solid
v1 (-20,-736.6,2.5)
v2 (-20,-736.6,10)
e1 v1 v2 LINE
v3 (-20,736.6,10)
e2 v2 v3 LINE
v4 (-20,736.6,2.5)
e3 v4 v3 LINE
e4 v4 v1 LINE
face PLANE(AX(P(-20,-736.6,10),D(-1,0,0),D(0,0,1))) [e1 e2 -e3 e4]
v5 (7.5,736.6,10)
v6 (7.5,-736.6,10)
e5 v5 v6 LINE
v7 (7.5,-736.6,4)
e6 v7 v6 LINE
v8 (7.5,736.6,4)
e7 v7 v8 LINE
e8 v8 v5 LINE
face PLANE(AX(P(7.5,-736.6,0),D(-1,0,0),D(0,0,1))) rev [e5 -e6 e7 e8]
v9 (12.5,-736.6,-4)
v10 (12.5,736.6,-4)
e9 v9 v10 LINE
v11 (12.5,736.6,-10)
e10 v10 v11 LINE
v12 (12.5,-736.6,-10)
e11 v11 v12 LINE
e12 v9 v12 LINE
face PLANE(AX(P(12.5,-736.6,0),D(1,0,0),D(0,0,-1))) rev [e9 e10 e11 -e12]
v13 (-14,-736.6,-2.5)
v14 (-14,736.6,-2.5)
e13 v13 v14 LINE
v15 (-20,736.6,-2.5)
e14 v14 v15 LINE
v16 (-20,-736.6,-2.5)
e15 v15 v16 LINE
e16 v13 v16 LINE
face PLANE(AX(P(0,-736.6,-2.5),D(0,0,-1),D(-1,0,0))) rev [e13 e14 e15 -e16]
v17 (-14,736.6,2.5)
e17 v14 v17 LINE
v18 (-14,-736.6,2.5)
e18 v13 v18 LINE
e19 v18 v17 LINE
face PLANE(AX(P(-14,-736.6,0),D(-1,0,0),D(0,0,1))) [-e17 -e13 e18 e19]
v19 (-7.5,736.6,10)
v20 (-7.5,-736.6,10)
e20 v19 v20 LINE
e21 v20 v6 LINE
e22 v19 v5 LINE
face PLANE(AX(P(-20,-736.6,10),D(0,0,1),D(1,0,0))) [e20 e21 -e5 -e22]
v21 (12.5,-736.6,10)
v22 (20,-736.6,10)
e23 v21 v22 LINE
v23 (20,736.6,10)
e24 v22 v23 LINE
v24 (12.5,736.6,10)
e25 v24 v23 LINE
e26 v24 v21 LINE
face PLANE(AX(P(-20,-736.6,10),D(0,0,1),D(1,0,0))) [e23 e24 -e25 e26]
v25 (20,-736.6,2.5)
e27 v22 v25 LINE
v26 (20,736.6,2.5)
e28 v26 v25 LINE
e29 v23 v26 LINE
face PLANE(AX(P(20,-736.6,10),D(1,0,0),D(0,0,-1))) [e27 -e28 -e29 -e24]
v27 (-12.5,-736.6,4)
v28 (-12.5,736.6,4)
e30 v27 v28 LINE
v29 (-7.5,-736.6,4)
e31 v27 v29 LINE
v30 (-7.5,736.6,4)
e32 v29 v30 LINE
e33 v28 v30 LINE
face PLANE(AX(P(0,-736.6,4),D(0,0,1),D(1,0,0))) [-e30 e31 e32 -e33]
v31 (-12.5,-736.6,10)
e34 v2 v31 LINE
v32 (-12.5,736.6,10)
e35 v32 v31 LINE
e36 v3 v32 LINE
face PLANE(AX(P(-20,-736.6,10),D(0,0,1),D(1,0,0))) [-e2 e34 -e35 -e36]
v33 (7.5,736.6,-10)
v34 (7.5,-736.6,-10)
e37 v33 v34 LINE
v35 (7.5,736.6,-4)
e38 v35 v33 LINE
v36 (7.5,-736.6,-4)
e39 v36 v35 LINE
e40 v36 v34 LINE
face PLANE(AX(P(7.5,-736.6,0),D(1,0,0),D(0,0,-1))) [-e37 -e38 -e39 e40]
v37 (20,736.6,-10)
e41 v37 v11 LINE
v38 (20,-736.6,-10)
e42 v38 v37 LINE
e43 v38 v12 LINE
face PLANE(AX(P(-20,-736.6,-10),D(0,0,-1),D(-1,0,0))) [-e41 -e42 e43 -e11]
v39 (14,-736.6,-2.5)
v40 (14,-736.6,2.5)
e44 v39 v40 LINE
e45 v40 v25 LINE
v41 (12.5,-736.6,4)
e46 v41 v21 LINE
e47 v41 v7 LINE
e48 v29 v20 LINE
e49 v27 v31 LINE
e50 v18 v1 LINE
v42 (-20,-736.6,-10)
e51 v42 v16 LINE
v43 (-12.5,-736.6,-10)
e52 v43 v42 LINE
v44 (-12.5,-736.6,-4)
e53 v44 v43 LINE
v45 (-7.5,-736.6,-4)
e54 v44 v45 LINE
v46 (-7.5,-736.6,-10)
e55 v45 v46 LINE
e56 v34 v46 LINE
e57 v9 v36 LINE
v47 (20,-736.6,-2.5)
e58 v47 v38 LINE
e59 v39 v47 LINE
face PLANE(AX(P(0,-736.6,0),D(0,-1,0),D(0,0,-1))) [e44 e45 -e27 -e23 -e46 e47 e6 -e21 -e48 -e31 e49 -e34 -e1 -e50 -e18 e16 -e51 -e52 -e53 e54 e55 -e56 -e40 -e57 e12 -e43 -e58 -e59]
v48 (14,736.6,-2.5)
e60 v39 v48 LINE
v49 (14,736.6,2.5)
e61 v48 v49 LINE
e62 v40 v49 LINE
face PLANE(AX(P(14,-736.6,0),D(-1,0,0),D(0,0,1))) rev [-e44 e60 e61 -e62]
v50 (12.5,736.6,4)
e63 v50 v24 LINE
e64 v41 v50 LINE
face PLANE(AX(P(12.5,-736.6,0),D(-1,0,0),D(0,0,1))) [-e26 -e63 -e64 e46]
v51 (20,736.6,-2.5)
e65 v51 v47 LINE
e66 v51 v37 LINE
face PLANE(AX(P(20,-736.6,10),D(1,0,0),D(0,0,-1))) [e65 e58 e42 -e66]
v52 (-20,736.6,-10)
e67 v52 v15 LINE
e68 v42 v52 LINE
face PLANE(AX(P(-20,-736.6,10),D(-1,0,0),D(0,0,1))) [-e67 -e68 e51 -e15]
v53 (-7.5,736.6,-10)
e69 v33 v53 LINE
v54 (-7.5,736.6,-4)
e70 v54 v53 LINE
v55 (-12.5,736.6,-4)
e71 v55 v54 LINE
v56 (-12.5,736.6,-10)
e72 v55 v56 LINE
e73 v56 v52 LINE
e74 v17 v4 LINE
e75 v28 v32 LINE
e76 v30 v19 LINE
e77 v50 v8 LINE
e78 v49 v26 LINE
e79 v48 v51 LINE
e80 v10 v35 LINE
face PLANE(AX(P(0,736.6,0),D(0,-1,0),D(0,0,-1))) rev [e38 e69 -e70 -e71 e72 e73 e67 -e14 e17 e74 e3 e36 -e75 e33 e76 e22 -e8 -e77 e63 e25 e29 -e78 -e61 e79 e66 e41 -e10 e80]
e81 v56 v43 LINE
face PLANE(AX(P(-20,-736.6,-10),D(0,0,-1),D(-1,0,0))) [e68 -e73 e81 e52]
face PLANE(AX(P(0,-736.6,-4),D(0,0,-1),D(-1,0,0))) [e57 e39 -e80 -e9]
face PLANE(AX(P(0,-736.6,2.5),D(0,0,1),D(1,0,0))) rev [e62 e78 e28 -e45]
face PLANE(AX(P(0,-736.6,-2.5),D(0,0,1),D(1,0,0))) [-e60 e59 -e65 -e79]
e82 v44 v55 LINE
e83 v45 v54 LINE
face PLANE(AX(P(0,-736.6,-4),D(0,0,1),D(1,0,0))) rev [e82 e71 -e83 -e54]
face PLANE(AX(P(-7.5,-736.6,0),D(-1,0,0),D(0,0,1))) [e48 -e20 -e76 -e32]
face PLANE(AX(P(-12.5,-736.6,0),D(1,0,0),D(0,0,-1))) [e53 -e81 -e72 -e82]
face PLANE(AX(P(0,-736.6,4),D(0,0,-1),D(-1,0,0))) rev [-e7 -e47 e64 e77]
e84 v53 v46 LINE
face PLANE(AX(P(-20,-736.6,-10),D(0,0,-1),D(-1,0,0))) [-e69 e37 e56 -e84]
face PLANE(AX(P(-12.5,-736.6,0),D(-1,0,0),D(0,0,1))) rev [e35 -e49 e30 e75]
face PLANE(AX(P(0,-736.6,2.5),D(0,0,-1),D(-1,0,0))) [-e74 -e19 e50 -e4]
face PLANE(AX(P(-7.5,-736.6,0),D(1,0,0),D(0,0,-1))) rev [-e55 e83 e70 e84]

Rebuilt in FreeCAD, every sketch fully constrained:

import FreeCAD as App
import Part
import Sketcher
from FreeCAD import Vector
Q = App.Units.Quantity

doc = App.newDocument("Part")
params = doc.addObject("Spreadsheet::Sheet", "Params")
for row, (alias, value) in enumerate([
    ("sketch1_width", "40 mm"),
    ("sketch1_height", "20 mm"),
    ("pad1_length", "736.6 mm"),
    ("pad1_length2", "736.6 mm"),
    ("sketch2_width", "5 mm"),
    ("sketch2_width2", "12 mm"),
], start=1):
    params.set(f"A{row}", alias)
    params.set(f"B{row}", "=" + value)
    params.setAlias(f"B{row}", alias)

body = doc.addObject("PartDesign::Body", "Body")

sketch1 = body.newObject("Sketcher::SketchObject", "Sketch")
sketch1.AttachmentSupport = (doc.getObject("XZ_Plane"), [""])
sketch1.MapMode = "FlatFace"
sketch1.addGeometry([
    Part.LineSegment(Vector(-20, -10, 0), Vector(-20, 10, 0)),
    Part.LineSegment(Vector(-20, 10, 0), Vector(20, 10, 0)),
    Part.LineSegment(Vector(20, 10, 0), Vector(20, -10, 0)),
    Part.LineSegment(Vector(20, -10, 0), Vector(-20, -10, 0)),
], False)
sketch1.addConstraint([
    Sketcher.Constraint("Coincident", 0, 2, 1, 1),
    Sketcher.Constraint("Coincident", 1, 2, 2, 1),
    Sketcher.Constraint("Coincident", 2, 2, 3, 1),
    Sketcher.Constraint("Coincident", 3, 2, 0, 1),
    Sketcher.Constraint("Vertical", 0),
    Sketcher.Constraint("Horizontal", 1),
    Sketcher.Constraint("Vertical", 2),
    Sketcher.Constraint("Horizontal", 3),
    Sketcher.Constraint("Symmetric", 0, 2, 2, 2, -1, 1),
    Sketcher.Constraint("DistanceX", 1, 1, 1, 2, Q("40 mm")),
    Sketcher.Constraint("DistanceY", 0, 1, 0, 2, Q("20 mm")),
])
sketch1.setExpression("Constraints[9]", "Params.sketch1_width")
sketch1.setExpression("Constraints[10]", "Params.sketch1_height")
pad1 = body.newObject("PartDesign::Pad", "Pad")
pad1.Profile = sketch1
pad1.Type = "TwoLengths"
pad1.setExpression("Length", "Params.pad1_length")
pad1.setExpression("Length2", "Params.pad1_length2")
pad1.Reversed = True

sketch2 = body.newObject("Sketcher::SketchObject", "Sketch001")
sketch2.AttachmentSupport = (doc.getObject("XZ_Plane"), [""])
sketch2.MapMode = "FlatFace"
sketch2.addGeometry([
    Part.LineSegment(Vector(-12, -16, 0), Vector(-12, -4, 0)),
    Part.LineSegment(Vector(-12, -4, 0), Vector(-8, -4, 0)),
    Part.LineSegment(Vector(-8, -4, 0), Vector(-8, -16, 0)),
    Part.LineSegment(Vector(-8, -16, 0), Vector(-12, -16, 0)),
    Part.LineSegment(Vector(-12, 4, 0), Vector(-12, 16, 0)),
    Part.LineSegment(Vector(-12, 16, 0), Vector(-8, 16, 0)),
    Part.LineSegment(Vector(-8, 16, 0), Vector(-8, 4, 0)),
    Part.LineSegment(Vector(-8, 4, 0), Vector(-12, 4, 0)),
    Part.LineSegment(Vector(-26, -2, 0), Vector(-26, 2, 0)),
    Part.LineSegment(Vector(-26, 2, 0), Vector(-14, 2, 0)),
    Part.LineSegment(Vector(-14, 2, 0), Vector(-14, -2, 0)),
    Part.LineSegment(Vector(-14, -2, 0), Vector(-26, -2, 0)),
    Part.LineSegment(Vector(8, -16, 0), Vector(8, -4, 0)),
    Part.LineSegment(Vector(8, -4, 0), Vector(12, -4, 0)),
    Part.LineSegment(Vector(12, -4, 0), Vector(12, -16, 0)),
    Part.LineSegment(Vector(12, -16, 0), Vector(8, -16, 0)),
    Part.LineSegment(Vector(14, -2, 0), Vector(14, 2, 0)),
    Part.LineSegment(Vector(14, 2, 0), Vector(26, 2, 0)),
    Part.LineSegment(Vector(26, 2, 0), Vector(26, -2, 0)),
    Part.LineSegment(Vector(26, -2, 0), Vector(14, -2, 0)),
    Part.LineSegment(Vector(8, 4, 0), Vector(8, 16, 0)),
    Part.LineSegment(Vector(8, 16, 0), Vector(12, 16, 0)),
    Part.LineSegment(Vector(12, 16, 0), Vector(12, 4, 0)),
    Part.LineSegment(Vector(12, 4, 0), Vector(8, 4, 0)),
], False)
sketch2.addConstraint([
    Sketcher.Constraint("Coincident", 0, 2, 1, 1),
    Sketcher.Constraint("Coincident", 1, 2, 2, 1),
    Sketcher.Constraint("Coincident", 2, 2, 3, 1),
    Sketcher.Constraint("Coincident", 3, 2, 0, 1),
    Sketcher.Constraint("Coincident", 4, 2, 5, 1),
    Sketcher.Constraint("Coincident", 5, 2, 6, 1),
    Sketcher.Constraint("Coincident", 6, 2, 7, 1),
    Sketcher.Constraint("Coincident", 7, 2, 4, 1),
    Sketcher.Constraint("Coincident", 8, 2, 9, 1),
    Sketcher.Constraint("Coincident", 9, 2, 10, 1),
    Sketcher.Constraint("Coincident", 10, 2, 11, 1),
    Sketcher.Constraint("Coincident", 11, 2, 8, 1),
    Sketcher.Constraint("Coincident", 12, 2, 13, 1),
    Sketcher.Constraint("Coincident", 13, 2, 14, 1),
    Sketcher.Constraint("Coincident", 14, 2, 15, 1),
    Sketcher.Constraint("Coincident", 15, 2, 12, 1),
    Sketcher.Constraint("Coincident", 16, 2, 17, 1),
    Sketcher.Constraint("Coincident", 17, 2, 18, 1),
    Sketcher.Constraint("Coincident", 18, 2, 19, 1),
    Sketcher.Constraint("Coincident", 19, 2, 16, 1),
    Sketcher.Constraint("Coincident", 20, 2, 21, 1),
    Sketcher.Constraint("Coincident", 21, 2, 22, 1),
    Sketcher.Constraint("Coincident", 22, 2, 23, 1),
    Sketcher.Constraint("Coincident", 23, 2, 20, 1),
    Sketcher.Constraint("Vertical", 0),
    Sketcher.Constraint("Horizontal", 1),
    Sketcher.Constraint("Vertical", 2),
    Sketcher.Constraint("Horizontal", 3),
    Sketcher.Constraint("Vertical", 4),
    Sketcher.Constraint("Horizontal", 5),
    Sketcher.Constraint("Vertical", 6),
    Sketcher.Constraint("Horizontal", 7),
    Sketcher.Constraint("Vertical", 8),
    Sketcher.Constraint("Horizontal", 9),
    Sketcher.Constraint("Vertical", 10),
    Sketcher.Constraint("Horizontal", 11),
    Sketcher.Constraint("Vertical", 12),
    Sketcher.Constraint("Horizontal", 13),
    Sketcher.Constraint("Vertical", 14),
    Sketcher.Constraint("Horizontal", 15),
    Sketcher.Constraint("Vertical", 16),
    Sketcher.Constraint("Horizontal", 17),
    Sketcher.Constraint("Vertical", 18),
    Sketcher.Constraint("Horizontal", 19),
    Sketcher.Constraint("Vertical", 20),
    Sketcher.Constraint("Horizontal", 21),
    Sketcher.Constraint("Vertical", 22),
    Sketcher.Constraint("Horizontal", 23),
    Sketcher.Constraint("Symmetric", 6, 2, 12, 2, -1, 1),
    Sketcher.Constraint("Symmetric", 4, 2, 14, 2, -1, 1),
    Sketcher.Constraint("Symmetric", 10, 2, 16, 2, -1, 1),
    Sketcher.Constraint("Symmetric", 8, 2, 18, 2, -1, 1),
    Sketcher.Constraint("Symmetric", 2, 2, 20, 2, -1, 1),
    Sketcher.Constraint("Symmetric", 0, 2, 22, 2, -1, 1),
    Sketcher.Constraint("Symmetric", 1, 2, 12, 2, -2),
    Sketcher.Constraint("Symmetric", 3, 2, 14, 2, -2),
    Sketcher.Constraint("Horizontal", 9, 2, 16, 2),
    Sketcher.Constraint("Equal", 19, 0),
    Sketcher.Constraint("Equal", 23, 8),
    Sketcher.Constraint("DistanceX", 1, 1, 1, 2, Q("5 mm")),
    Sketcher.Constraint("DistanceX", 9, 1, 9, 2, Q("12 mm")),
    Sketcher.Constraint("DistanceY", 0, 2, -1, 1, Q("4 mm")),
    Sketcher.Constraint("DistanceX", 8, 2, -1, 1, Q("26 mm")),
    Sketcher.Constraint("DistanceX", 1, 2, 12, 2, Q("15 mm")),
])
sketch2.setExpression("Constraints[59]", "Params.sketch2_width")
sketch2.setExpression("Constraints[60]", "Params.sketch2_width2")
pocket1 = body.newObject("PartDesign::Pocket", "Pocket")
pocket1.Profile = sketch2
pocket1.Type = "ThroughAll"
pocket1.Midplane = True

doc.recompute()
